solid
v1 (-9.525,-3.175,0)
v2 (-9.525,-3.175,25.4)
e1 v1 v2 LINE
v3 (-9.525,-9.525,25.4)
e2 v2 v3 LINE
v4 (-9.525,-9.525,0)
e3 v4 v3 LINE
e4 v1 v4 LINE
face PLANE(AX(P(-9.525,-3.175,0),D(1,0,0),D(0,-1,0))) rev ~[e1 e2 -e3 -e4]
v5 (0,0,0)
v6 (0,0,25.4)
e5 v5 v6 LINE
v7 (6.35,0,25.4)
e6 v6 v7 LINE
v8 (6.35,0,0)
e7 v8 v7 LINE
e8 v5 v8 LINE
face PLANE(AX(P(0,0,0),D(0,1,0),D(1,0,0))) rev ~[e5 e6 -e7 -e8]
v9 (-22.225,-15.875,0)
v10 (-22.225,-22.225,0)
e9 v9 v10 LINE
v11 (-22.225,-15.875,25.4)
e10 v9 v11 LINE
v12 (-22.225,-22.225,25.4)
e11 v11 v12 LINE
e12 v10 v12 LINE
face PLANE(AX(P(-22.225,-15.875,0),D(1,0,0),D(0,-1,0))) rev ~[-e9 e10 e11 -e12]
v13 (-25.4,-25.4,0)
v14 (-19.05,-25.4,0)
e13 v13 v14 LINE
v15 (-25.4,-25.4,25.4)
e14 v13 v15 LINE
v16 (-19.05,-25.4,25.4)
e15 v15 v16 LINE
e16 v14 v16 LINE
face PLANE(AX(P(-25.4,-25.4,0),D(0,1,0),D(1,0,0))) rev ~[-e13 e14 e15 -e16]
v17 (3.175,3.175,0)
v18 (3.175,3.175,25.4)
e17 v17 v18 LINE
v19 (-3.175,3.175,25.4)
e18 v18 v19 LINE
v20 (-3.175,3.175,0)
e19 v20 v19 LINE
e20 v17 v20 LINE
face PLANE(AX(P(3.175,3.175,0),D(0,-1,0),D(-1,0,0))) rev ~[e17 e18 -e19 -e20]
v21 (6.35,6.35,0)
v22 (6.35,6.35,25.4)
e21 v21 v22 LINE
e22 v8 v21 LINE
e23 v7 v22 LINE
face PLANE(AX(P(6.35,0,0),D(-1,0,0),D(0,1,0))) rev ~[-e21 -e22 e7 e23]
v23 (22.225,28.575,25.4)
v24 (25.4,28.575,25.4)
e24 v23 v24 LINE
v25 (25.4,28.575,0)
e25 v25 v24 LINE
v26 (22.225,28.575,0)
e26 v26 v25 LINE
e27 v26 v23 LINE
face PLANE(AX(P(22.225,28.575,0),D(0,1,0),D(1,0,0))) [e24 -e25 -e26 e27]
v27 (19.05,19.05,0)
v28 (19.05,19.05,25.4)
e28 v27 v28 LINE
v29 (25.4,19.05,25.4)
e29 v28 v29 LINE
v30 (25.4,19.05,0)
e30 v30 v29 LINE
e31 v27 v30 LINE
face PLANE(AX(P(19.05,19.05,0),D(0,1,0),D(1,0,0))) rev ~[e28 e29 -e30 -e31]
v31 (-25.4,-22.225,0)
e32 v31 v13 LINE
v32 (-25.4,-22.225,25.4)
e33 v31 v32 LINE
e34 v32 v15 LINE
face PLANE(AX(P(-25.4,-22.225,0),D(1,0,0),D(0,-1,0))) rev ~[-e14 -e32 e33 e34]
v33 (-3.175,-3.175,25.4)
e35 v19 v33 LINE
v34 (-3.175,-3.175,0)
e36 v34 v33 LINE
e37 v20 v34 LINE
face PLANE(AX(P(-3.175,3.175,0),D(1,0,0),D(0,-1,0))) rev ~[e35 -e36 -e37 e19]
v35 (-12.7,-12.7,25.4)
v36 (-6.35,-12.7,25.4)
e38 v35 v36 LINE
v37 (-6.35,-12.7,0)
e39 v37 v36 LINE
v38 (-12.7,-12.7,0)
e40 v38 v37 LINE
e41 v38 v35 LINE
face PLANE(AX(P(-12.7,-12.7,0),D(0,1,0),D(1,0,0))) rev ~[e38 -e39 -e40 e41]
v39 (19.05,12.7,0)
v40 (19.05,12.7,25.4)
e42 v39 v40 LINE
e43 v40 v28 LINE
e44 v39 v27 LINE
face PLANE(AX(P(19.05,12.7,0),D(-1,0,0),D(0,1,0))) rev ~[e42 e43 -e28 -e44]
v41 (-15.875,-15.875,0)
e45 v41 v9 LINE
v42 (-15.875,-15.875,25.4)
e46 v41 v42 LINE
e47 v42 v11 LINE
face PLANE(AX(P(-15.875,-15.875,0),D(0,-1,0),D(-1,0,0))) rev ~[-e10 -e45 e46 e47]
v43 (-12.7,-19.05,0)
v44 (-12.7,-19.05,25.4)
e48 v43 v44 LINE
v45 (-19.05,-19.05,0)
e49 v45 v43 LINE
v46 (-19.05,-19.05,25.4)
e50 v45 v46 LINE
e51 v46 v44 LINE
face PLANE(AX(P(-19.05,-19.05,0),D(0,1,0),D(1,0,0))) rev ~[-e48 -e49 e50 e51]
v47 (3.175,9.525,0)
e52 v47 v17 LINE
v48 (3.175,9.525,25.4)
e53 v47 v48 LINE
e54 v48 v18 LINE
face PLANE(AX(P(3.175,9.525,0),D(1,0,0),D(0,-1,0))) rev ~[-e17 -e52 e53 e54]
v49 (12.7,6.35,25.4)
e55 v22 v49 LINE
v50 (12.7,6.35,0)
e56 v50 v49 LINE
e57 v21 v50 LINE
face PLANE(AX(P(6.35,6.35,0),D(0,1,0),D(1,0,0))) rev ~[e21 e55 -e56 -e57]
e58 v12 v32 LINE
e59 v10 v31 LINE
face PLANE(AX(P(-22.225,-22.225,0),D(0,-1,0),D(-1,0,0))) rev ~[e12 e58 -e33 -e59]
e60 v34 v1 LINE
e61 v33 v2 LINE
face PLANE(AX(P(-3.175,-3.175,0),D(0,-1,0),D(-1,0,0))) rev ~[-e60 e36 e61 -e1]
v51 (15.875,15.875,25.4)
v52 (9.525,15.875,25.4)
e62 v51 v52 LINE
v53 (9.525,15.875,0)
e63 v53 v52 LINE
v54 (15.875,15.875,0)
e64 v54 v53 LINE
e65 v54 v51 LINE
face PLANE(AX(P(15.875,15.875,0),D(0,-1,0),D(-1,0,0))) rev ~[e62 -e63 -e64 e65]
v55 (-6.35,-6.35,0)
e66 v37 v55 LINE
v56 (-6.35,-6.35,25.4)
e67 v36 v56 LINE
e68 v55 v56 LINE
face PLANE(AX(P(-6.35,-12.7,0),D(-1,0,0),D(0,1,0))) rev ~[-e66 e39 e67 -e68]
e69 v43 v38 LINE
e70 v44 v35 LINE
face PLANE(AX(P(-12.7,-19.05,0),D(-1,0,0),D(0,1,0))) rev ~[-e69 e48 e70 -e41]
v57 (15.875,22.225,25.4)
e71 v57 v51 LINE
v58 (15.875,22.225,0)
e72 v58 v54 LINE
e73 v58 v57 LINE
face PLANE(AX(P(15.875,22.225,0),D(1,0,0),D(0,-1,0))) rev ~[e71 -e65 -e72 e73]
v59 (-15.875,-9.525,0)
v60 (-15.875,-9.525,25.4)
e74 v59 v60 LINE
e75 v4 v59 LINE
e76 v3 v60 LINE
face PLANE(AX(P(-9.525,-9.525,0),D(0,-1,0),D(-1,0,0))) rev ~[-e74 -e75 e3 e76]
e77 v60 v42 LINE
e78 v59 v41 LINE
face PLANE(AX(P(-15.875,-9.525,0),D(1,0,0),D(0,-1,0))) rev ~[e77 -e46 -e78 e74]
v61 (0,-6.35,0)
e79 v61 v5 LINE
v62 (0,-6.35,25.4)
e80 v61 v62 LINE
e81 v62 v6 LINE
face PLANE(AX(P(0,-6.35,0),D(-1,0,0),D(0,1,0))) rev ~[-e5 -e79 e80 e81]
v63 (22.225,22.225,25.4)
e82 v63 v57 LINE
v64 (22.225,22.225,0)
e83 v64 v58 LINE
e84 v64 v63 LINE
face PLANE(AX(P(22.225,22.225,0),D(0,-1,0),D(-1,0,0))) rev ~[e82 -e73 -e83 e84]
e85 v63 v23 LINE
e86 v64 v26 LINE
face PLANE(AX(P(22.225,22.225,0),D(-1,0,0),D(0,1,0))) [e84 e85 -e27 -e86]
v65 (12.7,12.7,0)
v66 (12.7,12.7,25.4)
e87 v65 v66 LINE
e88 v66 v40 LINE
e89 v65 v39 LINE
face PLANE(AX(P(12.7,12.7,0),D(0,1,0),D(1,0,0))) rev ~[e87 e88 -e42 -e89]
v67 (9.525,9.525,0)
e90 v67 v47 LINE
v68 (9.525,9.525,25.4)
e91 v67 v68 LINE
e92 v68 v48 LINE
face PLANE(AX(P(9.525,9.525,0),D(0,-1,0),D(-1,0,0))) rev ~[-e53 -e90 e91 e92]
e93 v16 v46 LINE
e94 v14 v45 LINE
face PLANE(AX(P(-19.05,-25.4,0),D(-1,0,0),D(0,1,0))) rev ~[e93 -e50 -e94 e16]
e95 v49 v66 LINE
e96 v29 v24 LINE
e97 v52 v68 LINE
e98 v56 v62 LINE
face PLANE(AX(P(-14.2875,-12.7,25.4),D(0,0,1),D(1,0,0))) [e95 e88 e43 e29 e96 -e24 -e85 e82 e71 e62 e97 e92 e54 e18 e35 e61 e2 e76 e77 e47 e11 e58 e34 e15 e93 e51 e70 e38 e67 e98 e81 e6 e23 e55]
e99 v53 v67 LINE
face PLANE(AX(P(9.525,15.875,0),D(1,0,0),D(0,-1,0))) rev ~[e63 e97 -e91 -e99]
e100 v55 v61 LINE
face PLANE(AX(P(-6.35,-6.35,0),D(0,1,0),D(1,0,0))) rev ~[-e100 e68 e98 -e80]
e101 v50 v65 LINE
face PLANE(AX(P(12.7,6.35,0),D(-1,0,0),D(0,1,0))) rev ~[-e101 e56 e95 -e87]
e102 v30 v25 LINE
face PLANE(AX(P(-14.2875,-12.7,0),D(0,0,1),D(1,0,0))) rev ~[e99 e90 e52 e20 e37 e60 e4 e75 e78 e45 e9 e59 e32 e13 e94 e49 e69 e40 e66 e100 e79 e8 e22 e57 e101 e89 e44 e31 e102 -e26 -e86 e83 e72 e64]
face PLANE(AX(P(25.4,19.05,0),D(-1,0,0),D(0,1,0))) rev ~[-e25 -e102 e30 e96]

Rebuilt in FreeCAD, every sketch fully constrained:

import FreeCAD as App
import Part
import Sketcher

V = App.Vector
Q = App.Units.Quantity


def add_polygon(sketch, points):
    """Adds a closed chain of lines whose ends are joined by coincident constraints."""
    first, n = sketch.GeometryCount, len(points)
    for a, b in zip(points, points[1:] + points[:1]):
        sketch.addGeometry(Part.LineSegment(App.Vector(*a, 0), App.Vector(*b, 0)), False)
    for i in range(n):
        sketch.addConstraint(Sketcher.Constraint("Coincident", first + i, 2, first + (i + 1) % n, 1))

doc = App.newDocument("Part")
params = doc.addObject("Spreadsheet::Sheet", "Params")
for row, (alias, value) in enumerate([
    ("pad1_length", "1 in"),
], start=1):
    params.set(f"A{row}", alias)
    params.set(f"B{row}", "=" + value)
    params.setAlias(f"B{row}", alias)

body = doc.addObject("PartDesign::Body", "Body")

sketch1 = doc.addObject("Sketcher::SketchObject", "Sketch")
body.addObject(sketch1)
sketch1.AttachmentSupport = (doc.XY_Plane, [""])
sketch1.MapMode = "FlatFace"
add_polygon(sketch1, [(-15.9, -9.5), (-15.9, -15.9), (-22.2, -15.9), (-22.2, -22.2), (-25.4, -22.2), (-25.4, -25.4), (-19.1, -25.4), (-19.1, -19.1), (-12.7, -19.1), (-12.7, -12.7), (-6.3, -12.7), (-6.3, -6.3), (0, -6.3), (0, 0), (6.3, 0), (6.3, 6.3), (12.7, 6.3), (12.7, 12.7), (19.1, 12.7), (19.1, 19.1), (25.4, 19.1), (25.4, 28.6), (22.2, 28.6), (22.2, 22.2), (15.9, 22.2), (15.9, 15.9), (9.5, 15.9), (9.5, 9.5), (3.2, 9.5), (3.2, 3.2), (-3.2, 3.2), (-3.2, -3.2), (-9.5, -3.2), (-9.5, -9.5)])
sketch1.addConstraint(Sketcher.Constraint("Vertical", 0))
sketch1.addConstraint(Sketcher.Constraint("Horizontal", 1))
sketch1.addConstraint(Sketcher.Constraint("Vertical", 2))
sketch1.addConstraint(Sketcher.Constraint("Horizontal", 3))
sketch1.addConstraint(Sketcher.Constraint("Vertical", 4))
sketch1.addConstraint(Sketcher.Constraint("Horizontal", 5))
sketch1.addConstraint(Sketcher.Constraint("Vertical", 6))
sketch1.addConstraint(Sketcher.Constraint("Horizontal", 7))
sketch1.addConstraint(Sketcher.Constraint("Vertical", 8))
sketch1.addConstraint(Sketcher.Constraint("Horizontal", 9))
sketch1.addConstraint(Sketcher.Constraint("Vertical", 10))
sketch1.addConstraint(Sketcher.Constraint("Horizontal", 11))
sketch1.addConstraint(Sketcher.Constraint("Vertical", 12))
sketch1.addConstraint(Sketcher.Constraint("Horizontal", 13))
sketch1.addConstraint(Sketcher.Constraint("Vertical", 14))
sketch1.addConstraint(Sketcher.Constraint("Horizontal", 15))
sketch1.addConstraint(Sketcher.Constraint("Vertical", 16))
sketch1.addConstraint(Sketcher.Constraint("Horizontal", 17))
sketch1.addConstraint(Sketcher.Constraint("Vertical", 18))
sketch1.addConstraint(Sketcher.Constraint("Horizontal", 19))
sketch1.addConstraint(Sketcher.Constraint("Vertical", 20))
sketch1.addConstraint(Sketcher.Constraint("Horizontal", 21))
sketch1.addConstraint(Sketcher.Constraint("Vertical", 22))
sketch1.addConstraint(Sketcher.Constraint("Horizontal", 23))
sketch1.addConstraint(Sketcher.Constraint("Vertical", 24))
sketch1.addConstraint(Sketcher.Constraint("Horizontal", 25))
sketch1.addConstraint(Sketcher.Constraint("Vertical", 26))
sketch1.addConstraint(Sketcher.Constraint("Horizontal", 27))
sketch1.addConstraint(Sketcher.Constraint("Vertical", 28))
sketch1.addConstraint(Sketcher.Constraint("Horizontal", 29))
sketch1.addConstraint(Sketcher.Constraint("Vertical", 30))
sketch1.addConstraint(Sketcher.Constraint("Horizontal", 31))
sketch1.addConstraint(Sketcher.Constraint("Vertical", 32))
sketch1.addConstraint(Sketcher.Constraint("Horizontal", 33))
sketch1.addConstraint(Sketcher.Constraint("Coincident", 12, 2, -1, 1))
sketch1.addConstraint(Sketcher.Constraint("Symmetric", 10, 2, 14, 2, -1, 1))
sketch1.addConstraint(Sketcher.Constraint("Symmetric", 8, 2, 16, 2, -1, 1))
sketch1.addConstraint(Sketcher.Constraint("Symmetric", 6, 2, 18, 2, -1, 1))
sketch1.addConstraint(Sketcher.Constraint("Symmetric", 2, 2, 22, 2, -1, 1))
sketch1.addConstraint(Sketcher.Constraint("Symmetric", 0, 2, 24, 2, -1, 1))
sketch1.addConstraint(Sketcher.Constraint("Symmetric", 28, 2, 30, 2, -1, 1))
sketch1.addConstraint(Sketcher.Constraint("Symmetric", 26, 2, 32, 2, -1, 1))
sketch1.addConstraint(Sketcher.Constraint("Equal", 1, 5))
sketch1.addConstraint(Sketcher.Constraint("Equal", 5, 7))
sketch1.addConstraint(Sketcher.Constraint("Equal", 7, 9))
sketch1.addConstraint(Sketcher.Constraint("Equal", 9, 11))
sketch1.addConstraint(Sketcher.Constraint("Equal", 17, 19))
sketch1.addConstraint(Sketcher.Constraint("Equal", 23, 25))
sketch1.addConstraint(Sketcher.Constraint("Equal", 25, 27))
sketch1.addConstraint(Sketcher.Constraint("Equal", 27, 29))
sketch1.addConstraint(Sketcher.Constraint("Equal", 33, 0))
sketch1.addConstraint(Sketcher.Constraint("Equal", 0, 2))
sketch1.addConstraint(Sketcher.Constraint("Equal", 21, 4))
sketch1.addConstraint(Sketcher.Constraint("Equal", 2, 6))
sketch1.addConstraint(Sketcher.Constraint("Equal", 6, 8))
sketch1.addConstraint(Sketcher.Constraint("Equal", 8, 10))
sketch1.addConstraint(Sketcher.Constraint("Equal", 10, 12))
sketch1.addConstraint(Sketcher.Constraint("Equal", 18, 22))
sketch1.addConstraint(Sketcher.Constraint("Equal", 26, 28))
sketch1.addConstraint(Sketcher.Constraint("DistanceX", 3, 2, -1, 1, Q("1 in")))
pad1 = doc.addObject("PartDesign::Pad", "Pad")
body.addObject(pad1)
pad1.Profile = sketch1
pad1.setExpression("Length", "Params.pad1_length")

doc.recompute()
